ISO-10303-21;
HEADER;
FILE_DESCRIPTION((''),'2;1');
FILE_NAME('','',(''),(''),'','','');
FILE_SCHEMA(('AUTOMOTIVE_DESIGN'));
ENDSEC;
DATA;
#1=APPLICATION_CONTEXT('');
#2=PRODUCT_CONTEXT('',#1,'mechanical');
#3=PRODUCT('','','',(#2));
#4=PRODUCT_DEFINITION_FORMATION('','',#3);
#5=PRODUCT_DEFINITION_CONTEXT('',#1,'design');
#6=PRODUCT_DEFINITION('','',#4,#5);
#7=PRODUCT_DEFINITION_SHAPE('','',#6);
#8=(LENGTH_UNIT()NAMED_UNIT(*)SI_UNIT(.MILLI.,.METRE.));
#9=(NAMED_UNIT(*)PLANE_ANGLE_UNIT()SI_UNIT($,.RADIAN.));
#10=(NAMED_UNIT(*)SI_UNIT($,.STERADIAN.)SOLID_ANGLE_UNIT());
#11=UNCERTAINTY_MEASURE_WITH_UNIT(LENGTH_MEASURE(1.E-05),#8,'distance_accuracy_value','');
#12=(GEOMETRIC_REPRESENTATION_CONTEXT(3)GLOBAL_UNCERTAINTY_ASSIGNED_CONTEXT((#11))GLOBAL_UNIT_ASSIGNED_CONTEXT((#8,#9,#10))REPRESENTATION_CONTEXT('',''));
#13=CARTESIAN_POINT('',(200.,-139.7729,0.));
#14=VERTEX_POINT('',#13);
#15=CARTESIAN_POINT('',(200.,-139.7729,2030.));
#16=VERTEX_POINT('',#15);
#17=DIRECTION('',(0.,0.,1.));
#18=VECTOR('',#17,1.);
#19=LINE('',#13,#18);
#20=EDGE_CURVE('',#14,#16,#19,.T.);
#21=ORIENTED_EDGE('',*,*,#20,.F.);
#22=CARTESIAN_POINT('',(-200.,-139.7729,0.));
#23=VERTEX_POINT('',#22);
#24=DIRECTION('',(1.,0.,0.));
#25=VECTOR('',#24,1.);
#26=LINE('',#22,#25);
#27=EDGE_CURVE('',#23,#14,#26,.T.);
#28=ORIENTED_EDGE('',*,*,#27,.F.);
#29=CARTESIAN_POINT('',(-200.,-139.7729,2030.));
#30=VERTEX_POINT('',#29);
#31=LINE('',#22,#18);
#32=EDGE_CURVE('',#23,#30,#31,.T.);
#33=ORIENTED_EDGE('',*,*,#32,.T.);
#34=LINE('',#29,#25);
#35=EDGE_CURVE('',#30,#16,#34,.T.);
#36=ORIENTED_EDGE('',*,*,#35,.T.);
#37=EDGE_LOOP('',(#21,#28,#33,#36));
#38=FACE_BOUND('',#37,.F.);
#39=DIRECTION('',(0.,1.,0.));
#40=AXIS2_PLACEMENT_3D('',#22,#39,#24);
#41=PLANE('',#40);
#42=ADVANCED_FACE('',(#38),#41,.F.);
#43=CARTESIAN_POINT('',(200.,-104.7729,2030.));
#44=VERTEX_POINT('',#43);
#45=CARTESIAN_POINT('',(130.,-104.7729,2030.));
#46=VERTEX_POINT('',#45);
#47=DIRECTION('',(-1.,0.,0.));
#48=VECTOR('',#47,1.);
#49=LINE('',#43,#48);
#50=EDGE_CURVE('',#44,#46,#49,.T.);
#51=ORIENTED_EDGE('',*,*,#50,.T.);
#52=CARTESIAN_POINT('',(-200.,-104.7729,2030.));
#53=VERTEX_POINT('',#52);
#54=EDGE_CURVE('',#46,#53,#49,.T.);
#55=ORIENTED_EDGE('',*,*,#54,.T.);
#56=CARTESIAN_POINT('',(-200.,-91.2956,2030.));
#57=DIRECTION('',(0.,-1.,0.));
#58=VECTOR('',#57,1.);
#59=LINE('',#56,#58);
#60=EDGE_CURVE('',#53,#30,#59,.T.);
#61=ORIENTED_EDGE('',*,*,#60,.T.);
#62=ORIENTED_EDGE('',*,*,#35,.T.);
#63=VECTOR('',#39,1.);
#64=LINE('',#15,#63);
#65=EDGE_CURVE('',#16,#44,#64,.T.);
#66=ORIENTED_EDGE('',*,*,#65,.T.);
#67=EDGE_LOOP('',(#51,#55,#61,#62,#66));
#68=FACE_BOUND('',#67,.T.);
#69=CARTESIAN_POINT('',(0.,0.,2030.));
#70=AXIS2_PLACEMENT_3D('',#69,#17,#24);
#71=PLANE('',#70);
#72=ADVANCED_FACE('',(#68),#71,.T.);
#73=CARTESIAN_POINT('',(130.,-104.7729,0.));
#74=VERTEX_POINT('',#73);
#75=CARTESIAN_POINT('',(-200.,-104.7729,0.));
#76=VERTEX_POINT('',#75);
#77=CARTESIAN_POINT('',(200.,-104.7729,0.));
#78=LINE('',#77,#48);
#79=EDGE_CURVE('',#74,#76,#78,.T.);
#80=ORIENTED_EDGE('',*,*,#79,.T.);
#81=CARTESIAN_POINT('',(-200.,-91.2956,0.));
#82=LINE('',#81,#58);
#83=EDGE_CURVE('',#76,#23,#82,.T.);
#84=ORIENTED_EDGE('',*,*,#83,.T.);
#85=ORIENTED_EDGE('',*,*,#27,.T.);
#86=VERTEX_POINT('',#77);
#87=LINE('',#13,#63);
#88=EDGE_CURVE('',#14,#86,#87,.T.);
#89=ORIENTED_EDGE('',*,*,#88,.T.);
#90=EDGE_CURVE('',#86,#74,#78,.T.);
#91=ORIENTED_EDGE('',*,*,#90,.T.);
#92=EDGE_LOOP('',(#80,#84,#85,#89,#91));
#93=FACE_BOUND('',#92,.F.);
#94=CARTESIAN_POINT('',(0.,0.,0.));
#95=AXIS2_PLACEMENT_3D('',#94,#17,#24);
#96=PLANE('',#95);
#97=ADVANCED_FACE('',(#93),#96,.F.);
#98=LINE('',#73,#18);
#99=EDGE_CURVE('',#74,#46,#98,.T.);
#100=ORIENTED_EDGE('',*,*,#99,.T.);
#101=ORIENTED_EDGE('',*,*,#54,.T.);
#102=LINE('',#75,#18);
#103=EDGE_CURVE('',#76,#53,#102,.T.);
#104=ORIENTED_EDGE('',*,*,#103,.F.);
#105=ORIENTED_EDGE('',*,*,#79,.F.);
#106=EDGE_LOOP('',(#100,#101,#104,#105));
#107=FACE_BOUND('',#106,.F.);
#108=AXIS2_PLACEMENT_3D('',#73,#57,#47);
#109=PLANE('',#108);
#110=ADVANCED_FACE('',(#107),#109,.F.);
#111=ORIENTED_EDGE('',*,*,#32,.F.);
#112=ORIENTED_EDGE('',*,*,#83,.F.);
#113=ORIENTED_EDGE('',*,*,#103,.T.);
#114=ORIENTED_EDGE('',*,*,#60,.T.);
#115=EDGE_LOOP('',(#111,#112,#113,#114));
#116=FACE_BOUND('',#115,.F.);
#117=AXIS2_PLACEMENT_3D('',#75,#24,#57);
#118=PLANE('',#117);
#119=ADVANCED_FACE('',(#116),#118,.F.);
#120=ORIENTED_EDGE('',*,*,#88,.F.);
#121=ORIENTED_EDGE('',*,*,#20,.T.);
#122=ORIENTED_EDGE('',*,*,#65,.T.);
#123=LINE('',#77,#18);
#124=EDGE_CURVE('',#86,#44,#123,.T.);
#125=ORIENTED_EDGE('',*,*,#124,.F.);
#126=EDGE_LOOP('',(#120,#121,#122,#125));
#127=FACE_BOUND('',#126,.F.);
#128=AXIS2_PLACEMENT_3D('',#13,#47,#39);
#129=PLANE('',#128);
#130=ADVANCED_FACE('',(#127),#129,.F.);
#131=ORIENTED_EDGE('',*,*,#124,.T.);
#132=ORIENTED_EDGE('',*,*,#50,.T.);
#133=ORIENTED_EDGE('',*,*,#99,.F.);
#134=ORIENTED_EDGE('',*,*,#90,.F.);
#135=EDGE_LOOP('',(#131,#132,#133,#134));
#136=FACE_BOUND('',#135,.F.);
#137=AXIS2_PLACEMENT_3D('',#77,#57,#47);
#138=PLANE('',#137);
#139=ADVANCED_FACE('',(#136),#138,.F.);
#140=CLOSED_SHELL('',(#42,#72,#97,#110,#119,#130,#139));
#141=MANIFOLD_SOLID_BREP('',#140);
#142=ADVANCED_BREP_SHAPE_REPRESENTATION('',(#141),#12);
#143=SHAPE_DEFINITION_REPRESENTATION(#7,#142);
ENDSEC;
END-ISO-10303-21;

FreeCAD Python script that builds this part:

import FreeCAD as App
import Part
import Sketcher
Q = App.Units.Quantity


def add_polygon(sketch, points):
    """Adds a closed chain of lines whose ends are joined by coincident constraints."""
    first, n = sketch.GeometryCount, len(points)
    for a, b in zip(points, points[1:] + points[:1]):
        sketch.addGeometry(Part.LineSegment(App.Vector(*a, 0), App.Vector(*b, 0)), False)
    for i in range(n):
        sketch.addConstraint(Sketcher.Constraint("Coincident", first + i, 2, first + (i + 1) % n, 1))

doc = App.newDocument("Part")
body = doc.addObject("PartDesign::Body", "Body")

sketch1 = body.newObject("Sketcher::SketchObject", "Sketch")
sketch1.AttachmentSupport = (doc.getObject("XY_Plane"), [""])
sketch1.MapMode = "FlatFace"
add_polygon(sketch1, [(-200, -105), (-200, -140), (200, -140), (200, -105)])
sketch1.addConstraint([
    Sketcher.Constraint("Vertical", 0),
    Sketcher.Constraint("Horizontal", 1),
    Sketcher.Constraint("Vertical", 2),
    Sketcher.Constraint("Horizontal", 3),
    Sketcher.Constraint("DistanceX", 1, 1, 1, 2, Q("400 mm")),
    Sketcher.Constraint("DistanceY", 0, 2, 0, 1, Q("35 mm")),
    Sketcher.Constraint("DistanceX", 0, 2, -1, 1, Q("200 mm")),
    Sketcher.Constraint("DistanceY", 0, 2, -1, 1, Q("139.773 mm")),
])
pad1 = body.newObject("PartDesign::Pad", "Pad")
pad1.Profile = sketch1
pad1.Length = 2030

doc.recompute()
